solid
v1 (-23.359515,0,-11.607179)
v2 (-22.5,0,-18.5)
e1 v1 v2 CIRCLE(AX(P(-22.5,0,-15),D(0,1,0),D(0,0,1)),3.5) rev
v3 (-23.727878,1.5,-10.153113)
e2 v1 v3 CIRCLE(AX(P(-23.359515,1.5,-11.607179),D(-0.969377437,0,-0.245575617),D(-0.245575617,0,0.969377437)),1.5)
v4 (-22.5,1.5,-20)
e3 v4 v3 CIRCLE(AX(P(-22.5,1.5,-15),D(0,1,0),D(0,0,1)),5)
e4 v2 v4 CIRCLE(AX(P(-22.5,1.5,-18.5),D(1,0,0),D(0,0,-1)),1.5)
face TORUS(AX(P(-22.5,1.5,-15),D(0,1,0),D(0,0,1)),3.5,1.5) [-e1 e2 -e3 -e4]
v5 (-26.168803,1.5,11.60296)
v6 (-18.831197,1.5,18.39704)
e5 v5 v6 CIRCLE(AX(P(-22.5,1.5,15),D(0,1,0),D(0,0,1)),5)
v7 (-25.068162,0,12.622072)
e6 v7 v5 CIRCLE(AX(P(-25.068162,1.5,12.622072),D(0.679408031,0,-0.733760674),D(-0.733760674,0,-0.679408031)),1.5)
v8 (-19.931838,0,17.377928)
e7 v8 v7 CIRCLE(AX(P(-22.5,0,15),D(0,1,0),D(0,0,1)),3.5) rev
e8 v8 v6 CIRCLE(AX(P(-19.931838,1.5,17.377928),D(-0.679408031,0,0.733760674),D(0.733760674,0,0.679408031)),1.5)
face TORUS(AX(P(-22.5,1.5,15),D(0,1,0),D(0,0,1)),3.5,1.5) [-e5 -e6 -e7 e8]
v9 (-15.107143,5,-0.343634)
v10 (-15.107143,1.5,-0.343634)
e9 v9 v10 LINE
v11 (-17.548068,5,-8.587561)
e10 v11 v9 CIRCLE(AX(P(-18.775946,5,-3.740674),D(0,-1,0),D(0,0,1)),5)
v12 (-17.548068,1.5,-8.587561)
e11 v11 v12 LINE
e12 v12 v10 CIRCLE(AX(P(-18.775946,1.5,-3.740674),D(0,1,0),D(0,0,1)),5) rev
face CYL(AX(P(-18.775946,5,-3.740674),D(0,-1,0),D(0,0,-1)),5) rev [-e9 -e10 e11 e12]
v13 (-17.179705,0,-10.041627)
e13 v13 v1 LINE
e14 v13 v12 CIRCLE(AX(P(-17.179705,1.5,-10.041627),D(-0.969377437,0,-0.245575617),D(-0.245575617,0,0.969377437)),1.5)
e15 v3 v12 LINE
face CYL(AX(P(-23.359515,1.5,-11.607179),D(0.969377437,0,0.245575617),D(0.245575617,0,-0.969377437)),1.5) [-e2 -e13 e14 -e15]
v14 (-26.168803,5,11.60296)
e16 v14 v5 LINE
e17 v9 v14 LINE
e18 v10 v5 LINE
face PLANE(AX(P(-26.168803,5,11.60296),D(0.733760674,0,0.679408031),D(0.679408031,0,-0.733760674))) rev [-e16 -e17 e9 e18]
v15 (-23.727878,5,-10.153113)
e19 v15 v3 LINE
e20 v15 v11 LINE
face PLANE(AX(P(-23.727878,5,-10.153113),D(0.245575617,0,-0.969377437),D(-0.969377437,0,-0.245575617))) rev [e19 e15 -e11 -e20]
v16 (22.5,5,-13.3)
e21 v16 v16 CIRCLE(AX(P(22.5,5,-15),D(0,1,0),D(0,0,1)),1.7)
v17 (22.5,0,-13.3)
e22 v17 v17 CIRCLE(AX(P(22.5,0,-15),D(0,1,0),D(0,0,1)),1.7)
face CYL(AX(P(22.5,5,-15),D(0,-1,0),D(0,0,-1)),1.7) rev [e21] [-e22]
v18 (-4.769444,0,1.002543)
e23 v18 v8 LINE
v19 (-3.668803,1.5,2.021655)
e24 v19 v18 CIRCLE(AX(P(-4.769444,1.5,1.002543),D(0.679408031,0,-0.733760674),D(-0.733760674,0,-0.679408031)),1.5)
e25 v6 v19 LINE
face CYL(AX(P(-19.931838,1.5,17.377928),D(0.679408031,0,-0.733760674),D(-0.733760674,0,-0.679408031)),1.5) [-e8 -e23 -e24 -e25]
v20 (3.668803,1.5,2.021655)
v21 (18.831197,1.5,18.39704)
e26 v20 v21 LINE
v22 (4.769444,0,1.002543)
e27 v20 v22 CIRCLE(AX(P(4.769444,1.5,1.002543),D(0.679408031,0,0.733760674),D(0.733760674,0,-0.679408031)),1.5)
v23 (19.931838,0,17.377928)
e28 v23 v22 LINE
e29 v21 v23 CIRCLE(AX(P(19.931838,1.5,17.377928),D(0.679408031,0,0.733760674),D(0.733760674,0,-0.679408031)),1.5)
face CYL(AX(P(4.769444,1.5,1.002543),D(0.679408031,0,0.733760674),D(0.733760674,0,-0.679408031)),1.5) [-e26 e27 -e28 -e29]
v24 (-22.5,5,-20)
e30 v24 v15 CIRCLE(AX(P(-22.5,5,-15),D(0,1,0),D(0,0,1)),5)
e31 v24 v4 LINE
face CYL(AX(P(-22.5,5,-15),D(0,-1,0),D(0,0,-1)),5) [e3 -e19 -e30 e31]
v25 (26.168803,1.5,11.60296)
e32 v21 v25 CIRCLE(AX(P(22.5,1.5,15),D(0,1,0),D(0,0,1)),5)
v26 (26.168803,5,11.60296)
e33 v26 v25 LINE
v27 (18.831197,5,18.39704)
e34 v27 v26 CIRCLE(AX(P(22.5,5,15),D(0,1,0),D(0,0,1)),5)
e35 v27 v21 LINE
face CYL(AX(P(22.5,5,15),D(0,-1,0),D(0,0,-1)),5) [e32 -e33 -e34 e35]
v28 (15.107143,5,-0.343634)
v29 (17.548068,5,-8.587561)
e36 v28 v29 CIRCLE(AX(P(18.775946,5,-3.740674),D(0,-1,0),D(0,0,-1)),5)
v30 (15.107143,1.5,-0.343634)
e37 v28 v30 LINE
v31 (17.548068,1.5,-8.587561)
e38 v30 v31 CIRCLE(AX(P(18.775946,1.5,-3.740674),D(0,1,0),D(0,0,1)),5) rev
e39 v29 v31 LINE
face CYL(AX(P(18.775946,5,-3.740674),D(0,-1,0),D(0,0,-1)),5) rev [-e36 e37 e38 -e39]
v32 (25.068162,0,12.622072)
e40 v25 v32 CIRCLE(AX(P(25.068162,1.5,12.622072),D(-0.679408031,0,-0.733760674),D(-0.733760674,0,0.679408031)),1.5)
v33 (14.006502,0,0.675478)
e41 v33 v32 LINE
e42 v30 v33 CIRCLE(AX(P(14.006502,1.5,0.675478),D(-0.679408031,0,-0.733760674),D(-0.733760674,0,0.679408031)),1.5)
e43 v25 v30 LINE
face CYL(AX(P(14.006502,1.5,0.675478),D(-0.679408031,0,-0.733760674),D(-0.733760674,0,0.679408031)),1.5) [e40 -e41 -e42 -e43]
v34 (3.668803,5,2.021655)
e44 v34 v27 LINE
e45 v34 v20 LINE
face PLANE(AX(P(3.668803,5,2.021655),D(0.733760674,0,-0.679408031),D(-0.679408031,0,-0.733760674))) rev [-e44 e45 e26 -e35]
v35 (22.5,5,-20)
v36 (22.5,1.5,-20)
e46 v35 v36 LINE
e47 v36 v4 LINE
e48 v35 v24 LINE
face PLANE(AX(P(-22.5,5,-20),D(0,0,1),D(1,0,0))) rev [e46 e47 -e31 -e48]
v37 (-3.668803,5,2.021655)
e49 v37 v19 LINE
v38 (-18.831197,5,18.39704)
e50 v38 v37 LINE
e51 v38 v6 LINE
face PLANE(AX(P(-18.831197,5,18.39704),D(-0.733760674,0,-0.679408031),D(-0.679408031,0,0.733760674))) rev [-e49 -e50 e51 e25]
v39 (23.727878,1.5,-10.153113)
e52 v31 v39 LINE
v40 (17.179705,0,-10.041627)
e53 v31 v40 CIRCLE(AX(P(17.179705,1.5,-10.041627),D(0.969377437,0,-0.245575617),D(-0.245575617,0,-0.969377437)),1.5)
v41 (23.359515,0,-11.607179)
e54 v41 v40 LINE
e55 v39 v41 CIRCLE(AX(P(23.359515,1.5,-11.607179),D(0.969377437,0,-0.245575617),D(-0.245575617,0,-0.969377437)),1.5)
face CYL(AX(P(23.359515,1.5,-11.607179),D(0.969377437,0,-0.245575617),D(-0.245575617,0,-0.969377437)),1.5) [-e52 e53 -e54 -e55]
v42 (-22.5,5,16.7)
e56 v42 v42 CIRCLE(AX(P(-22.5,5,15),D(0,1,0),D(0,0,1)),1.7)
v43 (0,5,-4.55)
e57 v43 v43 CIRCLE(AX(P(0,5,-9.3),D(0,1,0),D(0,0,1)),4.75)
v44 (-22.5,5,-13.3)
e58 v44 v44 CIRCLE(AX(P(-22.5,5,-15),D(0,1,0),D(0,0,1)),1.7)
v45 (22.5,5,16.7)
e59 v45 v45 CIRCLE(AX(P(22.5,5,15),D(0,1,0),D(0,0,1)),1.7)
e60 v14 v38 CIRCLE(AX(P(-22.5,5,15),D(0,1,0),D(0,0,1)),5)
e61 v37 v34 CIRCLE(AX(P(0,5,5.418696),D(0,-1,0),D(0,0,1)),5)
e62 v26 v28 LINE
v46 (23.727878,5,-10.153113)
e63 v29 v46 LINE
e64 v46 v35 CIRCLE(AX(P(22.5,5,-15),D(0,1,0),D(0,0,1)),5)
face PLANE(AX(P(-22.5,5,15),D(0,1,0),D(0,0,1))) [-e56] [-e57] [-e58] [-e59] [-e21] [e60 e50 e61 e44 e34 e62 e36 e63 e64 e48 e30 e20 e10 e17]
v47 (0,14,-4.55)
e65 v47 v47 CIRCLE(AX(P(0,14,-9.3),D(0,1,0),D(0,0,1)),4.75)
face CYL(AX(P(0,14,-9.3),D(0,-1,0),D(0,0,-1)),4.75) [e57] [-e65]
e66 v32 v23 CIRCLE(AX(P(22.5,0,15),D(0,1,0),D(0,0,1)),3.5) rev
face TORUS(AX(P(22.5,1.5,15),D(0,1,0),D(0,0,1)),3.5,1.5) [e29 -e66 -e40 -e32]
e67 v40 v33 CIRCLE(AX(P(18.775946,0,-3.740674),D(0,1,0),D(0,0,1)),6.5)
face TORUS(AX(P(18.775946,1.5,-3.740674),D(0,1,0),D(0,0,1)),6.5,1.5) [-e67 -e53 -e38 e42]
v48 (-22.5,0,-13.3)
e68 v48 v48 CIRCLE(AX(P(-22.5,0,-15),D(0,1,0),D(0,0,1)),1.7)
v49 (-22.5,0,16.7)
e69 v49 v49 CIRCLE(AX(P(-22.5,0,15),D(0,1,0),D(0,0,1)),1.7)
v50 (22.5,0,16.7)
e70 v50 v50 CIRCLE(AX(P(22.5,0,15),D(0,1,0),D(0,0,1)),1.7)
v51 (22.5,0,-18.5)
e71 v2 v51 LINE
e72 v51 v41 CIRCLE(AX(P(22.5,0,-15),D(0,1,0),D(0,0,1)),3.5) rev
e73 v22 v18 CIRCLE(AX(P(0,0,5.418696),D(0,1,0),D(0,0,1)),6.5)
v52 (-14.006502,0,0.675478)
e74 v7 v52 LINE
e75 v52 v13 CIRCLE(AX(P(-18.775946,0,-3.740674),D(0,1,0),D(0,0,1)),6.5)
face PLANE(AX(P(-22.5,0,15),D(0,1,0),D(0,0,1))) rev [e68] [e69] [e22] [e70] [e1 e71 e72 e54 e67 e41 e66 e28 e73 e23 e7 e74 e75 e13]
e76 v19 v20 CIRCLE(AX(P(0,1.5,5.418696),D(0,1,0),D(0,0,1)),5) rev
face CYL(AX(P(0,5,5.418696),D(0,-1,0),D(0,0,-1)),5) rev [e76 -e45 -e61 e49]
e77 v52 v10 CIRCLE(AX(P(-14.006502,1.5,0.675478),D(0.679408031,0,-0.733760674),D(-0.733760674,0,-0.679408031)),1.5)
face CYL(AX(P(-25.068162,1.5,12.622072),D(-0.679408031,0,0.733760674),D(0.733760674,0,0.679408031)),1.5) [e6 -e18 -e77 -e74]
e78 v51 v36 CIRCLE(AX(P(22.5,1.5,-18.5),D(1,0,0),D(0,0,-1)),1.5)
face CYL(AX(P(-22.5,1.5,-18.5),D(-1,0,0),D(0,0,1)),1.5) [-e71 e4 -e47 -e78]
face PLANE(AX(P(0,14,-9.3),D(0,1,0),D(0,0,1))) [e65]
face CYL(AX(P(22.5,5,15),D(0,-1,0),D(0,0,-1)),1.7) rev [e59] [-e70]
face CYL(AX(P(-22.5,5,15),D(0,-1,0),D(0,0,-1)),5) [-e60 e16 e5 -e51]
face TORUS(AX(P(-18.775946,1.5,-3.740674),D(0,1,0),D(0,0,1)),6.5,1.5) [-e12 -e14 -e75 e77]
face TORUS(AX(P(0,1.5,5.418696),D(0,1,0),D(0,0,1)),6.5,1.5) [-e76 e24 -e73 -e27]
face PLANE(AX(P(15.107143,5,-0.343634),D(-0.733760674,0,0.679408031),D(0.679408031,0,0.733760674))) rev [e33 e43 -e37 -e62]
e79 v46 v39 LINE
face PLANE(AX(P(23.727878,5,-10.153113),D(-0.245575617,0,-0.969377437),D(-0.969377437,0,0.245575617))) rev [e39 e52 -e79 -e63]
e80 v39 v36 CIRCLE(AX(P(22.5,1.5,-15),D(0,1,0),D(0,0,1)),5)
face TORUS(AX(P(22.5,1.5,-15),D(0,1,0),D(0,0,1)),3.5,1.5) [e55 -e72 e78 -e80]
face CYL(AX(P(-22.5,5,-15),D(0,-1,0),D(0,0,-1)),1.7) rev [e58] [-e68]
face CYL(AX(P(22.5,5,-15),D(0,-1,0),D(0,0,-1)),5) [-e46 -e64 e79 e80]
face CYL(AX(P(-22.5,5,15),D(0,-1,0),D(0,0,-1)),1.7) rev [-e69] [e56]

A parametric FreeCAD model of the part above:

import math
import FreeCAD as App
import Part
import Sketcher
Q = App.Units.Quantity


def edges_at(feature, points):
    """Names of the edges that pass closest to the given points."""
    edges = feature.Shape.Edges
    near = lambda p: min(range(len(edges)), key=lambda i: edges[i].distToShape(Part.Vertex(*p))[0])
    return sorted({f"Edge{near(p) + 1}" for p in points})

doc = App.newDocument("Part")
body = doc.addObject("PartDesign::Body", "Body")

sketch1 = doc.addObject("Sketcher::SketchObject", "Sketch")
body.addObject(sketch1)
sketch1.AttachmentSupport = (doc.XZ_Plane, [""])
sketch1.MapMode = "FlatFace"
sketch1.addGeometry(Part.LineSegment(App.Vector(-15.107143, -0.343634, 0), App.Vector(-26.168803, 11.60296, 0)), False)
sketch1.addGeometry(Part.ArcOfCircle(Part.Circle(App.Vector(-22.5, 15, 0), App.Vector(0, 0, 1), 5), math.radians(42.797402), math.radians(222.797402)), False)
sketch1.addGeometry(Part.LineSegment(App.Vector(-18.831197, 18.39704, 0), App.Vector(-3.668803, 2.021655, 0)), False)
sketch1.addGeometry(Part.ArcOfCircle(Part.Circle(App.Vector(0, 5.418696, 0), App.Vector(0, 0, 1), 5), math.radians(-137.202598), math.radians(-42.797402)), False)
sketch1.addGeometry(Part.LineSegment(App.Vector(3.668803, 2.021655, 0), App.Vector(18.831197, 18.39704, 0)), False)
sketch1.addGeometry(Part.ArcOfCircle(Part.Circle(App.Vector(22.5, 15, 0), App.Vector(0, 0, 1), 5), math.radians(-42.797402), math.radians(137.202598)), False)
sketch1.addGeometry(Part.LineSegment(App.Vector(26.168803, 11.60296, 0), App.Vector(15.107143, -0.343634, 0)), False)
sketch1.addGeometry(Part.ArcOfCircle(Part.Circle(App.Vector(18.775946, -3.740674, 0), App.Vector(0, 0, 1), 5), math.radians(137.202598), math.radians(255.784147)), False)
sketch1.addGeometry(Part.LineSegment(App.Vector(17.548068, -8.587561, 0), App.Vector(23.727878, -10.153113, 0)), False)
sketch1.addGeometry(Part.ArcOfCircle(Part.Circle(App.Vector(22.5, -15, 0), App.Vector(0, 0, 1), 5), math.radians(-90), math.radians(75.784147)), False)
sketch1.addGeometry(Part.LineSegment(App.Vector(22.5, -20, 0), App.Vector(-22.5, -20, 0)), False)
sketch1.addGeometry(Part.ArcOfCircle(Part.Circle(App.Vector(-22.5, -15, 0), App.Vector(0, 0, 1), 5), math.radians(104.215853), math.radians(270)), False)
sketch1.addGeometry(Part.LineSegment(App.Vector(-23.727878, -10.153113, 0), App.Vector(-17.548068, -8.587561, 0)), False)
sketch1.addGeometry(Part.ArcOfCircle(Part.Circle(App.Vector(-18.775946, -3.740674, 0), App.Vector(0, 0, 1), 5), math.radians(-75.784147), math.radians(42.797402)), False)
sketch1.addGeometry(Part.Circle(App.Vector(22.5, 15, 0), App.Vector(0, 0, 1), 1.7), False)
sketch1.addGeometry(Part.Circle(App.Vector(-22.5, 15, 0), App.Vector(0, 0, 1), 1.7), False)
sketch1.addGeometry(Part.Circle(App.Vector(22.5, -15, 0), App.Vector(0, 0, 1), 1.7), False)
sketch1.addGeometry(Part.Circle(App.Vector(-22.5, -15, 0), App.Vector(0, 0, 1), 1.7), False)
sketch1.addConstraint(Sketcher.Constraint("Tangent", 0, 2, 1, 2))
sketch1.addConstraint(Sketcher.Constraint("Tangent", 1, 1, 2, 1))
sketch1.addConstraint(Sketcher.Constraint("Tangent", 2, 2, 3, 1))
sketch1.addConstraint(Sketcher.Constraint("Tangent", 3, 2, 4, 1))
sketch1.addConstraint(Sketcher.Constraint("Tangent", 4, 2, 5, 2))
sketch1.addConstraint(Sketcher.Constraint("Tangent", 5, 1, 6, 1))
sketch1.addConstraint(Sketcher.Constraint("Tangent", 6, 2, 7, 1))
sketch1.addConstraint(Sketcher.Constraint("Tangent", 7, 2, 8, 1))
sketch1.addConstraint(Sketcher.Constraint("Tangent", 8, 2, 9, 2))
sketch1.addConstraint(Sketcher.Constraint("Tangent", 9, 1, 10, 1))
sketch1.addConstraint(Sketcher.Constraint("Tangent", 10, 2, 11, 2))
sketch1.addConstraint(Sketcher.Constraint("Tangent", 11, 1, 12, 1))
sketch1.addConstraint(Sketcher.Constraint("Tangent", 12, 2, 13, 1))
sketch1.addConstraint(Sketcher.Constraint("Tangent", 13, 2, 0, 1))
sketch1.addConstraint(Sketcher.Constraint("Horizontal", 10))
sketch1.addConstraint(Sketcher.Constraint("Coincident", 14, 3, 5, 3))
sketch1.addConstraint(Sketcher.Constraint("Coincident", 15, 3, 1, 3))
sketch1.addConstraint(Sketcher.Constraint("Coincident", 16, 3, 9, 3))
sketch1.addConstraint(Sketcher.Constraint("Coincident", 17, 3, 11, 3))
sketch1.addConstraint(Sketcher.Constraint("Equal", 1, 3))
sketch1.addConstraint(Sketcher.Constraint("Equal", 3, 5))
sketch1.addConstraint(Sketcher.Constraint("Equal", 5, 7))
sketch1.addConstraint(Sketcher.Constraint("Equal", 7, 9))
sketch1.addConstraint(Sketcher.Constraint("Equal", 9, 11))
sketch1.addConstraint(Sketcher.Constraint("Equal", 11, 13))
sketch1.addConstraint(Sketcher.Constraint("Equal", 14, 15))
sketch1.addConstraint(Sketcher.Constraint("Equal", 15, 16))
sketch1.addConstraint(Sketcher.Constraint("Equal", 16, 17))
sketch1.addConstraint(Sketcher.Constraint("Symmetric", 1, 3, 9, 3, -1, 1))
sketch1.addConstraint(Sketcher.Constraint("Symmetric", 5, 3, 11, 3, -1, 1))
sketch1.addConstraint(Sketcher.Constraint("Symmetric", 7, 3, 13, 3, -2))
sketch1.addConstraint(Sketcher.Constraint("Symmetric", 2, 2, 3, 2, -2))
sketch1.addConstraint(Sketcher.Constraint("Parallel", 0, 2))
sketch1.addConstraint(Sketcher.Constraint("Radius", 1, Q("5 mm")))
sketch1.addConstraint(Sketcher.Constraint("Diameter", 14, Q("3.4 mm")))
sketch1.addConstraint(Sketcher.Constraint("DistanceX", 10, 2, 10, 1, Q("45 mm")))
sketch1.addConstraint(Sketcher.Constraint("DistanceY", -1, 1, 1, 3, Q("15 mm")))
sketch1.addConstraint(Sketcher.Constraint("Distance", 0, Q("16.281322 mm")))
sketch1.addConstraint(Sketcher.Constraint("Distance", 8, Q("6.37503 mm")))
pad1 = doc.addObject("PartDesign::Pad", "Pad")
body.addObject(pad1)
pad1.Profile = sketch1
pad1.Length = 5
pad1.Reversed = True

sketch2 = doc.addObject("Sketcher::SketchObject", "Sketch001")
body.addObject(sketch2)
sketch2.AttachmentSupport = (doc.XZ_Plane, [""])
sketch2.MapMode = "FlatFace"
sketch2.AttachmentOffset = App.Placement(App.Vector(0, 0, -5), App.Rotation())
sketch2.addGeometry(Part.Circle(App.Vector(0, -9.3, 0), App.Vector(0, 0, 1), 4.75), False)
sketch2.addConstraint(Sketcher.Constraint("PointOnObject", 0, 3, -2))
sketch2.addConstraint(Sketcher.Constraint("Diameter", 0, Q("9.5 mm")))
sketch2.addConstraint(Sketcher.Constraint("DistanceY", 0, 3, -1, 1, Q("9.3 mm")))
pad2 = doc.addObject("PartDesign::Pad", "Pad001")
body.addObject(pad2)
pad2.Profile = sketch2
pad2.Length = 9
pad2.Reversed = True
doc.recompute()

fillet = doc.addObject("PartDesign::Fillet", "Fillet")
body.addObject(fillet)
fillet.Base = (pad2, edges_at(pad2, [
    (-20.638, 0, 5.63),
    (-13.982, 0, -5.16),
    (-20.638, 0, -9.37),
    (-27.462, 0, -15.619),
    (0, 0, -20),
    (27.462, 0, -15.619),
    (20.638, 0, -9.37),
    (13.982, 0, -5.16),
    (20.638, 0, 5.63),
    (25.897, 0, 18.669),
    (11.25, 0, 10.209),
    (0, 0, 0.419),
    (-11.25, 0, 10.209),
    (-25.897, 0, 18.669),
]))
fillet.Radius = 1.5

doc.recompute()
